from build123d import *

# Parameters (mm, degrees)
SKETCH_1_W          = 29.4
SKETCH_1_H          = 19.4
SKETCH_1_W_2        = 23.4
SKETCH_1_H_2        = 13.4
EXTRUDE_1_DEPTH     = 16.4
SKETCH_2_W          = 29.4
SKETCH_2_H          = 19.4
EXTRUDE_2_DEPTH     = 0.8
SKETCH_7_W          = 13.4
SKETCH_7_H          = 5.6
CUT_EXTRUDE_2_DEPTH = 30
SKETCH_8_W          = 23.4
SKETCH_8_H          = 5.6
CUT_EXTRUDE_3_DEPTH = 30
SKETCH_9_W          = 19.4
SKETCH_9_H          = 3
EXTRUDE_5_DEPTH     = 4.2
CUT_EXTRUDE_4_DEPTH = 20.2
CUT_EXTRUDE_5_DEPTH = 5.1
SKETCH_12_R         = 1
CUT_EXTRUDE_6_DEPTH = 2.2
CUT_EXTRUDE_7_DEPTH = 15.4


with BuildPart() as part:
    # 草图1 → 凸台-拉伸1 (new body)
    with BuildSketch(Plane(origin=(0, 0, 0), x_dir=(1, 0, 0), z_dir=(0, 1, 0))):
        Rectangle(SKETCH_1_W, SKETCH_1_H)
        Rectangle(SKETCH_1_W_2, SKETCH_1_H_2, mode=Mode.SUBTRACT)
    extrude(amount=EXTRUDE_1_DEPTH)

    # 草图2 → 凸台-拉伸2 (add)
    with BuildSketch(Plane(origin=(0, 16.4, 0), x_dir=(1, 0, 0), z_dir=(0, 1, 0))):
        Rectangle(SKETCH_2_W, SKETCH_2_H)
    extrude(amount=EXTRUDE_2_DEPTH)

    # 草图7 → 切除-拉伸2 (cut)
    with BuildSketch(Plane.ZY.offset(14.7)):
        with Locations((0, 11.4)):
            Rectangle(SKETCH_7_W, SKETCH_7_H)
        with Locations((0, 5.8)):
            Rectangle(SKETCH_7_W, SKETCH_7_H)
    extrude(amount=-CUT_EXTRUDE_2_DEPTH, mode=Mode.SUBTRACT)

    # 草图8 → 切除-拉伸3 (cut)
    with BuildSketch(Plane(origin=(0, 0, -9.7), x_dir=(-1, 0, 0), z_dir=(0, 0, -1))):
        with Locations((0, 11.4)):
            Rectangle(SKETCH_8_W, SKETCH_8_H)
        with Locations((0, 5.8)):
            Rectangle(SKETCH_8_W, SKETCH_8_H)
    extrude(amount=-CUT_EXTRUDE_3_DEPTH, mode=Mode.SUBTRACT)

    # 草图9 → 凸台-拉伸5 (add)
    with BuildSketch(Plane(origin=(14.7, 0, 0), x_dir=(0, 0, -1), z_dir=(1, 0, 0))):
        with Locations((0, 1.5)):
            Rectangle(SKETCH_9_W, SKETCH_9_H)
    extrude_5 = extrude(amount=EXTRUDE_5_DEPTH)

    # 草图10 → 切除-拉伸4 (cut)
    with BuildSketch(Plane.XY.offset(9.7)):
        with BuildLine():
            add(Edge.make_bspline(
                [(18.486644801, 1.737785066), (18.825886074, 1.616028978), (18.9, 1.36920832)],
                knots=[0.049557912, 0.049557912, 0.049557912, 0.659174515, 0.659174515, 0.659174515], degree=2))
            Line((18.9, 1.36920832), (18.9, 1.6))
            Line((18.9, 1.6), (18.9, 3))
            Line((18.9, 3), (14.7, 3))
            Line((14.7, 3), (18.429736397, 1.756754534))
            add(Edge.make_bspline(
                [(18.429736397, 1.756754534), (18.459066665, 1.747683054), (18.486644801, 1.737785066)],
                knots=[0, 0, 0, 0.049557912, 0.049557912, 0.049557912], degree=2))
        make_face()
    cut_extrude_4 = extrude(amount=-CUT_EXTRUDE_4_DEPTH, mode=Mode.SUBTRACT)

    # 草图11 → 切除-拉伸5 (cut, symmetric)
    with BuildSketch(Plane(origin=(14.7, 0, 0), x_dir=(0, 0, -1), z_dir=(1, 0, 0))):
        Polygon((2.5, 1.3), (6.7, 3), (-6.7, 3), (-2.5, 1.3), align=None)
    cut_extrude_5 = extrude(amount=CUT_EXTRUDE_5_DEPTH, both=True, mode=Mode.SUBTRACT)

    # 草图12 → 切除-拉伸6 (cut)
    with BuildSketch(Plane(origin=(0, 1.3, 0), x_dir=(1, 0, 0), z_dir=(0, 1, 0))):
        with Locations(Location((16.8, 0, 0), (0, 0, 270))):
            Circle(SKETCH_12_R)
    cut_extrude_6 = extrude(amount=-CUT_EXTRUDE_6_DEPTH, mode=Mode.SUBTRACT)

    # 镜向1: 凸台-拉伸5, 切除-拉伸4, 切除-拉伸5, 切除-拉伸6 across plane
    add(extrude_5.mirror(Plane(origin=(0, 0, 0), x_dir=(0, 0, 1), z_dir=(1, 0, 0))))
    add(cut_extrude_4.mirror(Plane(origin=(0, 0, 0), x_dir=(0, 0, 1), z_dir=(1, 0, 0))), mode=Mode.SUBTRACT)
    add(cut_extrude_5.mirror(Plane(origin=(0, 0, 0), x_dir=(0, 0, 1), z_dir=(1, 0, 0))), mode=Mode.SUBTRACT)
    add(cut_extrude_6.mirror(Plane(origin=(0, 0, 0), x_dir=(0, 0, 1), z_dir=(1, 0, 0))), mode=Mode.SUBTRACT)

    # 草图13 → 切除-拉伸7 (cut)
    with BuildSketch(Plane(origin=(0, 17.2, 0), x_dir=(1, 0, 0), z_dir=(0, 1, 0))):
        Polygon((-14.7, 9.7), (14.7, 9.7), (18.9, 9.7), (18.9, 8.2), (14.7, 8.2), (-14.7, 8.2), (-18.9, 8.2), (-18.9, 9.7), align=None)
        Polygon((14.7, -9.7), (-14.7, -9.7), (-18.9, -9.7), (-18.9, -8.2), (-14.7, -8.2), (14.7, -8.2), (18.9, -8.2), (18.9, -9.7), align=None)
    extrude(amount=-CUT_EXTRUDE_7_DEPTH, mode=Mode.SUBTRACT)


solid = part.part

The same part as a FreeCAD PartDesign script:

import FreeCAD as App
import Part
import Sketcher
Q = App.Units.Quantity

doc = App.newDocument("Part")
body = doc.addObject("PartDesign::Body", "Body")

sketch1 = body.newObject("Sketcher::SketchObject", "Sketch")
sketch1.AttachmentSupport = (doc.getObject("XZ_Plane"), [""])
sketch1.MapMode = "FlatFace"
sketch1.addGeometry([
    Part.LineSegment(App.Vector(-15, -10, 0), App.Vector(-15, 10, 0)),
    Part.LineSegment(App.Vector(-15, 10, 0), App.Vector(15, 10, 0)),
    Part.LineSegment(App.Vector(15, 10, 0), App.Vector(15, -10, 0)),
    Part.LineSegment(App.Vector(15, -10, 0), App.Vector(-15, -10, 0)),
    Part.LineSegment(App.Vector(12, 7, 0), App.Vector(-12, 7, 0)),
    Part.LineSegment(App.Vector(-12, 7, 0), App.Vector(-12, -7, 0)),
    Part.LineSegment(App.Vector(-12, -7, 0), App.Vector(12, -7, 0)),
    Part.LineSegment(App.Vector(12, -7, 0), App.Vector(12, 7, 0)),
], False)
sketch1.addConstraint([
    Sketcher.Constraint("Coincident", 0, 2, 1, 1),
    Sketcher.Constraint("Coincident", 1, 2, 2, 1),
    Sketcher.Constraint("Coincident", 2, 2, 3, 1),
    Sketcher.Constraint("Coincident", 3, 2, 0, 1),
    Sketcher.Constraint("Coincident", 4, 2, 5, 1),
    Sketcher.Constraint("Coincident", 5, 2, 6, 1),
    Sketcher.Constraint("Coincident", 6, 2, 7, 1),
    Sketcher.Constraint("Coincident", 7, 2, 4, 1),
    Sketcher.Constraint("Vertical", 0),
    Sketcher.Constraint("Horizontal", 1),
    Sketcher.Constraint("Vertical", 2),
    Sketcher.Constraint("Horizontal", 3),
    Sketcher.Constraint("Horizontal", 4),
    Sketcher.Constraint("Vertical", 5),
    Sketcher.Constraint("Horizontal", 6),
    Sketcher.Constraint("Vertical", 7),
    Sketcher.Constraint("Symmetric", 0, 2, 2, 2, -1, 1),
    Sketcher.Constraint("Symmetric", 4, 2, 6, 2, -1, 1),
    Sketcher.Constraint("DistanceX", 1, 1, 1, 2, Q("29.4 mm")),
    Sketcher.Constraint("DistanceX", 4, 2, 4, 1, Q("23.4 mm")),
    Sketcher.Constraint("DistanceY", 0, 1, 0, 2, Q("19.4 mm")),
    Sketcher.Constraint("DistanceY", 5, 2, 5, 1, Q("13.4 mm")),
])
pad1 = body.newObject("PartDesign::Pad", "Pad")
pad1.Profile = sketch1
pad1.Length = 16.4
pad1.Reversed = True

sketch2 = body.newObject("Sketcher::SketchObject", "Sketch001")
sketch2.AttachmentSupport = (doc.getObject("XZ_Plane"), [""])
sketch2.MapMode = "FlatFace"
sketch2.AttachmentOffset = App.Placement(App.Vector(0, 0, -16.4), App.Rotation())
sketch2.addGeometry([
    Part.LineSegment(App.Vector(-15, -10, 0), App.Vector(-15, 10, 0)),
    Part.LineSegment(App.Vector(-15, 10, 0), App.Vector(15, 10, 0)),
    Part.LineSegment(App.Vector(15, 10, 0), App.Vector(15, -10, 0)),
    Part.LineSegment(App.Vector(15, -10, 0), App.Vector(-15, -10, 0)),
], False)
sketch2.addConstraint([
    Sketcher.Constraint("Coincident", 0, 2, 1, 1),
    Sketcher.Constraint("Coincident", 1, 2, 2, 1),
    Sketcher.Constraint("Coincident", 2, 2, 3, 1),
    Sketcher.Constraint("Coincident", 3, 2, 0, 1),
    Sketcher.Constraint("Vertical", 0),
    Sketcher.Constraint("Horizontal", 1),
    Sketcher.Constraint("Vertical", 2),
    Sketcher.Constraint("Horizontal", 3),
    Sketcher.Constraint("Symmetric", 0, 2, 2, 2, -1, 1),
    Sketcher.Constraint("DistanceX", 1, 1, 1, 2, Q("29.4 mm")),
    Sketcher.Constraint("DistanceY", 0, 1, 0, 2, Q("19.4 mm")),
])
pad2 = body.newObject("PartDesign::Pad", "Pad001")
pad2.Profile = sketch2
pad2.Length = 0.8
pad2.Reversed = True

sketch3 = body.newObject("Sketcher::SketchObject", "Sketch002")
sketch3.AttachmentSupport = (doc.getObject("YZ_Plane"), [""])
sketch3.MapMode = "FlatFace"
sketch3.AttachmentOffset = App.Placement(App.Vector(0, 0, -14.7), App.Rotation())
sketch3.addGeometry([
    Part.LineSegment(App.Vector(14, -7, 0), App.Vector(3, -7, 0)),
    Part.LineSegment(App.Vector(3, -7, 0), App.Vector(3, 7, 0)),
    Part.LineSegment(App.Vector(3, 7, 0), App.Vector(14, 7, 0)),
    Part.LineSegment(App.Vector(14, 7, 0), App.Vector(14, -7, 0)),
], False)
sketch3.addConstraint([
    Sketcher.Constraint("Coincident", 0, 2, 1, 1),
    Sketcher.Constraint("Coincident", 1, 2, 2, 1),
    Sketcher.Constraint("Coincident", 2, 2, 3, 1),
    Sketcher.Constraint("Coincident", 3, 2, 0, 1),
    Sketcher.Constraint("Horizontal", 0),
    Sketcher.Constraint("Vertical", 1),
    Sketcher.Constraint("Horizontal", 2),
    Sketcher.Constraint("Vertical", 3),
    Sketcher.Constraint("DistanceX", 0, 2, 0, 1, Q("11.2 mm")),
    Sketcher.Constraint("DistanceY", 1, 1, 1, 2, Q("13.4 mm")),
    Sketcher.Constraint("DistanceX", -1, 1, 0, 2, Q("3 mm")),
    Sketcher.Constraint("DistanceY", 0, 2, -1, 1, Q("6.7 mm")),
])
pocket1 = body.newObject("PartDesign::Pocket", "Pocket")
pocket1.Profile = sketch3
pocket1.Length = 30
pocket1.Reversed = True

sketch4 = body.newObject("Sketcher::SketchObject", "Sketch003")
sketch4.AttachmentSupport = (doc.getObject("XY_Plane"), [""])
sketch4.MapMode = "FlatFace"
sketch4.AttachmentOffset = App.Placement(App.Vector(0, 0, -9.7), App.Rotation())
sketch4.addGeometry([
    Part.LineSegment(App.Vector(12, 14, 0), App.Vector(12, 3, 0)),
    Part.LineSegment(App.Vector(12, 3, 0), App.Vector(-12, 3, 0)),
    Part.LineSegment(App.Vector(-12, 3, 0), App.Vector(-12, 14, 0)),
    Part.LineSegment(App.Vector(-12, 14, 0), App.Vector(12, 14, 0)),
], False)
sketch4.addConstraint([
    Sketcher.Constraint("Coincident", 0, 2, 1, 1),
    Sketcher.Constraint("Coincident", 1, 2, 2, 1),
    Sketcher.Constraint("Coincident", 2, 2, 3, 1),
    Sketcher.Constraint("Coincident", 3, 2, 0, 1),
    Sketcher.Constraint("Vertical", 0),
    Sketcher.Constraint("Horizontal", 1),
    Sketcher.Constraint("Vertical", 2),
    Sketcher.Constraint("Horizontal", 3),
    Sketcher.Constraint("DistanceX", 1, 2, 1, 1, Q("23.4 mm")),
    Sketcher.Constraint("DistanceY", 0, 2, 0, 1, Q("11.2 mm")),
    Sketcher.Constraint("DistanceY", -1, 1, 0, 2, Q("3 mm")),
    Sketcher.Constraint("DistanceX", -1, 1, 0, 2, Q("11.7 mm")),
])
pocket2 = body.newObject("PartDesign::Pocket", "Pocket001")
pocket2.Profile = sketch4
pocket2.Length = 30
pocket2.Reversed = True

sketch5 = body.newObject("Sketcher::SketchObject", "Sketch004")
sketch5.AttachmentSupport = (doc.getObject("YZ_Plane"), [""])
sketch5.MapMode = "FlatFace"
sketch5.AttachmentOffset = App.Placement(App.Vector(0, 0, 14.7), App.Rotation())
sketch5.addGeometry([
    Part.LineSegment(App.Vector(3, 9.7, 0), App.Vector(0, 9.7, 0)),
    Part.LineSegment(App.Vector(0, 9.7, 0), App.Vector(0, -9.7, 0)),
    Part.LineSegment(App.Vector(0, -9.7, 0), App.Vector(3, -9.7, 0)),
    Part.LineSegment(App.Vector(3, -9.7, 0), App.Vector(3, 9.7, 0)),
], False)
sketch5.addConstraint([
    Sketcher.Constraint("Coincident", 0, 2, 1, 1),
    Sketcher.Constraint("Coincident", 1, 2, 2, 1),
    Sketcher.Constraint("Coincident", 2, 2, 3, 1),
    Sketcher.Constraint("Coincident", 3, 2, 0, 1),
    Sketcher.Constraint("Horizontal", 0),
    Sketcher.Constraint("Vertical", 1),
    Sketcher.Constraint("Horizontal", 2),
    Sketcher.Constraint("Vertical", 3),
    Sketcher.Constraint("Symmetric", 0, 2, 1, 2, -1, 1),
    Sketcher.Constraint("DistanceX", 0, 2, 0, 1, Q("3 mm")),
    Sketcher.Constraint("DistanceY", 1, 2, 1, 1, Q("19.4 mm")),
])
pad3 = body.newObject("PartDesign::Pad", "Pad002")
pad3.Profile = sketch5
pad3.Length = 4.2

sketch6 = body.newObject("Sketcher::SketchObject", "Sketch005")
sketch6.AttachmentSupport = (doc.getObject("XY_Plane"), [""])
sketch6.MapMode = "FlatFace"
sketch6.AttachmentOffset = App.Placement(App.Vector(0, 0, 9.7), App.Rotation())
sketch6.addGeometry([
    Part.BSplineCurve([App.Vector(18.486645, 1.737785, 0), App.Vector(18.825886, 1.616029, 0), App.Vector(18.9, 1.369208, 0)], [3, 3], [0.049557912, 0.659174515], False, 2, [1, 1, 1], False),
    Part.LineSegment(App.Vector(18.9, 1.369208, 0), App.Vector(18.9, 3, 0)),
    Part.LineSegment(App.Vector(18.9, 3, 0), App.Vector(14.7, 3, 0)),
    Part.LineSegment(App.Vector(14.7, 3, 0), App.Vector(18.429736, 1.756755, 0)),
    Part.BSplineCurve([App.Vector(18.429736, 1.756755, 0), App.Vector(18.459067, 1.747683, 0), App.Vector(18.486645, 1.737785, 0)], [3, 3], [0, 0.049557912], False, 2, [1, 1, 1], False),
], False)
sketch6.addConstraint([
    Sketcher.Constraint("Block", 0),
    Sketcher.Constraint("Block", 4),
    Sketcher.Constraint("Coincident", 0, 2, 1, 1),
    Sketcher.Constraint("Coincident", 1, 2, 2, 1),
    Sketcher.Constraint("Coincident", 2, 2, 3, 1),
    Sketcher.Constraint("Coincident", 3, 2, 4, 1),
    Sketcher.Constraint("Vertical", 1),
    Sketcher.Constraint("Horizontal", 2),
    Sketcher.Constraint("DistanceX", 2, 2, 2, 1, Q("4.2 mm")),
    Sketcher.Constraint("DistanceY", -1, 1, 1, 2, Q("3 mm")),
])
pocket3 = body.newObject("PartDesign::Pocket", "Pocket002")
pocket3.Profile = sketch6
pocket3.Length = 20.2

sketch7 = body.newObject("Sketcher::SketchObject", "Sketch006")
sketch7.AttachmentSupport = (doc.getObject("YZ_Plane"), [""])
sketch7.MapMode = "FlatFace"
sketch7.AttachmentOffset = App.Placement(App.Vector(0, 0, 14.7), App.Rotation())
sketch7.addGeometry([
    Part.LineSegment(App.Vector(1.3, -2.5, 0), App.Vector(3, -6.7, 0)),
    Part.LineSegment(App.Vector(3, -6.7, 0), App.Vector(3, 6.7, 0)),
    Part.LineSegment(App.Vector(3, 6.7, 0), App.Vector(1.3, 2.5, 0)),
    Part.LineSegment(App.Vector(1.3, 2.5, 0), App.Vector(1.3, -2.5, 0)),
], False)
sketch7.addConstraint([
    Sketcher.Constraint("Coincident", 0, 2, 1, 1),
    Sketcher.Constraint("Coincident", 1, 2, 2, 1),
    Sketcher.Constraint("Coincident", 2, 2, 3, 1),
    Sketcher.Constraint("Coincident", 3, 2, 0, 1),
    Sketcher.Constraint("Vertical", 1),
    Sketcher.Constraint("Vertical", 3),
    Sketcher.Constraint("Equal", 0, 2),
    Sketcher.Constraint("DistanceY", 3, 2, 3, 1, Q("5 mm")),
    Sketcher.Constraint("DistanceY", 1, 1, 1, 2, Q("13.4 mm")),
    Sketcher.Constraint("DistanceX", -1, 1, 0, 2, Q("3 mm")),
    Sketcher.Constraint("DistanceY", 0, 2, -1, 1, Q("6.7 mm")),
    Sketcher.Constraint("DistanceX", -1, 1, 2, 2, Q("1.3 mm")),
])
pocket4 = body.newObject("PartDesign::Pocket", "Pocket003")
pocket4.Profile = sketch7
pocket4.Length = 10.2
pocket4.Midplane = True

sketch8 = body.newObject("Sketcher::SketchObject", "Sketch007")
sketch8.AttachmentSupport = (doc.getObject("XZ_Plane"), [""])
sketch8.MapMode = "FlatFace"
sketch8.AttachmentOffset = App.Placement(App.Vector(0, 0, -1.3), App.Rotation())
sketch8.addGeometry(Part.Circle(App.Vector(16.8, 0, 0), App.Vector(0, 0, 1), 1), False)
sketch8.addConstraint([
    Sketcher.Constraint("PointOnObject", 0, 3, -1),
    Sketcher.Constraint("Diameter", 0, Q("2 mm")),
    Sketcher.Constraint("DistanceX", -1, 1, 0, 3, Q("16.8 mm")),
])
pocket5 = body.newObject("PartDesign::Pocket", "Pocket004")
pocket5.Profile = sketch8
pocket5.Length = 2.2
pocket5.Reversed = True
doc.recompute()

mirrored = body.newObject("PartDesign::Mirrored", "Mirrored")
mirrored.Originals = [pad3, pocket3, pocket4, pocket5]
mirrored.MirrorPlane = (doc.getObject("YZ_Plane"), [""])
body.Tip = mirrored

sketch9 = body.newObject("Sketcher::SketchObject", "Sketch008")
sketch9.AttachmentSupport = (doc.getObject("XZ_Plane"), [""])
sketch9.MapMode = "FlatFace"
sketch9.AttachmentOffset = App.Placement(App.Vector(0, 0, -17.2), App.Rotation())
sketch9.addGeometry([
    Part.LineSegment(App.Vector(18.9, -9.7, 0), App.Vector(-18.9, -9.7, 0)),
    Part.LineSegment(App.Vector(-18.9, -9.7, 0), App.Vector(-18.9, -8.2, 0)),
    Part.LineSegment(App.Vector(-18.9, -8.2, 0), App.Vector(18.9, -8.2, 0)),
    Part.LineSegment(App.Vector(18.9, -8.2, 0), App.Vector(18.9, -9.7, 0)),
    Part.LineSegment(App.Vector(-18.9, 9.7, 0), App.Vector(18.9, 9.7, 0)),
    Part.LineSegment(App.Vector(18.9, 9.7, 0), App.Vector(18.9, 8.2, 0)),
    Part.LineSegment(App.Vector(18.9, 8.2, 0), App.Vector(-18.9, 8.2, 0)),
    Part.LineSegment(App.Vector(-18.9, 8.2, 0), App.Vector(-18.9, 9.7, 0)),
], False)
sketch9.addConstraint([
    Sketcher.Constraint("Coincident", 0, 2, 1, 1),
    Sketcher.Constraint("Coincident", 1, 2, 2, 1),
    Sketcher.Constraint("Coincident", 2, 2, 3, 1),
    Sketcher.Constraint("Coincident", 3, 2, 0, 1),
    Sketcher.Constraint("Coincident", 4, 2, 5, 1),
    Sketcher.Constraint("Coincident", 5, 2, 6, 1),
    Sketcher.Constraint("Coincident", 6, 2, 7, 1),
    Sketcher.Constraint("Coincident", 7, 2, 4, 1),
    Sketcher.Constraint("Horizontal", 0),
    Sketcher.Constraint("Vertical", 1),
    Sketcher.Constraint("Horizontal", 2),
    Sketcher.Constraint("Vertical", 3),
    Sketcher.Constraint("Horizontal", 4),
    Sketcher.Constraint("Vertical", 5),
    Sketcher.Constraint("Horizontal", 6),
    Sketcher.Constraint("Vertical", 7),
    Sketcher.Constraint("Symmetric", 0, 2, 4, 2, -1, 1),
    Sketcher.Constraint("Symmetric", 2, 2, 6, 2, -1, 1),
    Sketcher.Constraint("Vertical", 3, 2, 4, 2),
    Sketcher.Constraint("DistanceX", 0, 2, 0, 1, Q("37.8 mm")),
    Sketcher.Constraint("DistanceY", 1, 1, 1, 2, Q("1.5 mm")),
    Sketcher.Constraint("DistanceY", 0, 2, -1, 1, Q("9.7 mm")),
])
pocket6 = body.newObject("PartDesign::Pocket", "Pocket005")
pocket6.Profile = sketch9
pocket6.Length = 15.4
pocket6.Reversed = True

doc.recompute()
